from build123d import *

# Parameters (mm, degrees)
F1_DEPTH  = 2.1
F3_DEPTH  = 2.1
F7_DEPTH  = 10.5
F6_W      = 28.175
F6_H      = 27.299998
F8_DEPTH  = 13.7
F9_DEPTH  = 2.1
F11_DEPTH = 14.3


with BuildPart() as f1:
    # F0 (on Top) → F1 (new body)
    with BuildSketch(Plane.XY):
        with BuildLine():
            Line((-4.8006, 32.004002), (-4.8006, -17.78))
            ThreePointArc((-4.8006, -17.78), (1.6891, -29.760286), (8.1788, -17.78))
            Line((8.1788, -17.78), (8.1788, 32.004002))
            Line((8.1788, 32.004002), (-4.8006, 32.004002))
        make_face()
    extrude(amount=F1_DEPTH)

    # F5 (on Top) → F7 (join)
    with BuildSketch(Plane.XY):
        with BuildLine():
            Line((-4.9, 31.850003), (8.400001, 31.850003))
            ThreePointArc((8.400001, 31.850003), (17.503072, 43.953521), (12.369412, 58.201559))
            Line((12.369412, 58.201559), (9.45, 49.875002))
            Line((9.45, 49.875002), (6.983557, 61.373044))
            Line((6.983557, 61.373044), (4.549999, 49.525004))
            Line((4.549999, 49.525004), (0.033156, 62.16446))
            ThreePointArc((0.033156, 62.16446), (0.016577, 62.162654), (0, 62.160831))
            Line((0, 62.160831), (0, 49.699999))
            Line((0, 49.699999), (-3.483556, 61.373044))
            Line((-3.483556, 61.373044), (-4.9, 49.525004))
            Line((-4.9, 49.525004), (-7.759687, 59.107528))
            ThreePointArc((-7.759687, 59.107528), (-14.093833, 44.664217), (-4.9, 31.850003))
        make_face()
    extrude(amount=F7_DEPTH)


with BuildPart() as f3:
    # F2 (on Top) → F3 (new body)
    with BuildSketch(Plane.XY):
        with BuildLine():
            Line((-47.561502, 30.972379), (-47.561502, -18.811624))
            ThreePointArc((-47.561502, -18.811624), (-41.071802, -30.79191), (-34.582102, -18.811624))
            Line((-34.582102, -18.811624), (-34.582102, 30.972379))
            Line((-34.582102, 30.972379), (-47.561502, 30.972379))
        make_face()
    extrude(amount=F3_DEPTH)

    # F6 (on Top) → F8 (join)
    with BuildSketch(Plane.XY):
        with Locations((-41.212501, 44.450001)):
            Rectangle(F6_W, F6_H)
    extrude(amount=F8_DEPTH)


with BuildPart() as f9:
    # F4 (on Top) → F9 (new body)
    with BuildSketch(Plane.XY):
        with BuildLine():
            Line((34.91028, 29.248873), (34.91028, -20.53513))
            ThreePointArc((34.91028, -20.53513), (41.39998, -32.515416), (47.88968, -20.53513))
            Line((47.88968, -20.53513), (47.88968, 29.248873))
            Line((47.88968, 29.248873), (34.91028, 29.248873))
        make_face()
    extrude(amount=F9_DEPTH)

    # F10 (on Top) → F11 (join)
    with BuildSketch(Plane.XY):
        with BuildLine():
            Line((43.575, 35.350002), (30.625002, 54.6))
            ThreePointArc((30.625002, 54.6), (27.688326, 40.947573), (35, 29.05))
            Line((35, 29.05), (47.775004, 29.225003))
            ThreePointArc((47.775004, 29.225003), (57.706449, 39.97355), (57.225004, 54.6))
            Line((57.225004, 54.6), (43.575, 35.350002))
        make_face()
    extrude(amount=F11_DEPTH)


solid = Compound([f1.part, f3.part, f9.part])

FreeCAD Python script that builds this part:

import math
import FreeCAD as App
import Part
import Sketcher


def add_polygon(sketch, points):
    """Adds a closed chain of lines whose ends are joined by coincident constraints."""
    first, n = sketch.GeometryCount, len(points)
    for a, b in zip(points, points[1:] + points[:1]):
        sketch.addGeometry(Part.LineSegment(App.Vector(*a, 0), App.Vector(*b, 0)), False)
    for i in range(n):
        sketch.addConstraint(Sketcher.Constraint("Coincident", first + i, 2, first + (i + 1) % n, 1))

doc = App.newDocument("Part")
body = doc.addObject("PartDesign::Body", "Body")

sketch1 = body.newObject("Sketcher::SketchObject", "Sketch")
sketch1.AttachmentSupport = (doc.getObject("XY_Plane"), [""])
sketch1.MapMode = "FlatFace"
sketch1.addGeometry([
    Part.LineSegment(App.Vector(-5, 32, 0), App.Vector(-5, -18, 0)),
    Part.ArcOfCircle(Part.Circle(App.Vector(2, -22, 0), App.Vector(0, 0, 1), 8), math.radians(147), math.radians(393)),
    Part.LineSegment(App.Vector(8, -18, 0), App.Vector(8, 32, 0)),
    Part.LineSegment(App.Vector(8, 32, 0), App.Vector(-5, 32, 0)),
], False)
sketch1.addConstraint([
    Sketcher.Constraint("Coincident", 0, 2, 1, 1),
    Sketcher.Constraint("Coincident", 1, 2, 2, 1),
    Sketcher.Constraint("Coincident", 2, 2, 3, 1),
    Sketcher.Constraint("Coincident", 3, 2, 0, 1),
    Sketcher.Constraint("Vertical", 0),
    Sketcher.Constraint("Vertical", 2),
    Sketcher.Constraint("Horizontal", 3),
    Sketcher.Constraint("Horizontal", 0, 2, 1, 2),
    Sketcher.Constraint("DistanceY", 0, 2, -1, 1, 17.78),
    Sketcher.Constraint("DistanceX", 3, 2, 3, 1, 12.9794),
    Sketcher.Constraint("Radius", 1, 7.747873),
    Sketcher.Constraint("DistanceX", -1, 1, 1, 3, 1.6891),
    Sketcher.Constraint("DistanceY", 0, 2, 0, 1, 49.784002),
])
pad1 = body.newObject("PartDesign::Pad", "Pad")
pad1.Profile = sketch1
pad1.Length = 2.1

sketch2 = body.newObject("Sketcher::SketchObject", "Sketch001")
sketch2.AttachmentSupport = (doc.getObject("XY_Plane"), [""])
sketch2.MapMode = "FlatFace"
sketch2.addGeometry([
    Part.LineSegment(App.Vector(-4.9, 31.850003, 0), App.Vector(8.400001, 31.850003, 0)),
    Part.ArcOfCircle(Part.Circle(App.Vector(1.75, 46.326452, 0), App.Vector(0, 0, 1), 15.930791), math.radians(-65.327516), math.radians(48.195064)),
    Part.LineSegment(App.Vector(12.369412, 58.201559, 0), App.Vector(9.45, 49.875002, 0)),
    Part.LineSegment(App.Vector(9.45, 49.875002, 0), App.Vector(6.983557, 61.373044, 0)),
    Part.LineSegment(App.Vector(6.983557, 61.373044, 0), App.Vector(4.549999, 49.525004, 0)),
    Part.LineSegment(App.Vector(4.549999, 49.525004, 0), App.Vector(0.033156, 62.16446, 0)),
    Part.ArcOfCircle(Part.Circle(App.Vector(1.784468, 46.01049, 0), App.Vector(0, 0, 1), 16.248626), math.radians(96.187484), math.radians(96.305096)),
    Part.LineSegment(App.Vector(0, 62.160831, 0), App.Vector(0, 49.699999, 0)),
    Part.LineSegment(App.Vector(0, 49.699999, 0), App.Vector(-3.483556, 61.373044, 0)),
    Part.LineSegment(App.Vector(-3.483556, 61.373044, 0), App.Vector(-4.9, 49.525004, 0)),
    Part.LineSegment(App.Vector(-4.9, 49.525004, 0), App.Vector(-7.759687, 59.107528, 0)),
    Part.ArcOfCircle(Part.Circle(App.Vector(1.75, 46.326452, 0), App.Vector(0, 0, 1), 15.93079), math.radians(126.65088), math.radians(245.327521)),
], False)
sketch2.addConstraint([
    Sketcher.Constraint("Coincident", 0, 2, 1, 1),
    Sketcher.Constraint("Coincident", 1, 2, 2, 1),
    Sketcher.Constraint("Coincident", 2, 2, 3, 1),
    Sketcher.Constraint("Coincident", 3, 2, 4, 1),
    Sketcher.Constraint("Coincident", 4, 2, 5, 1),
    Sketcher.Constraint("Coincident", 5, 2, 6, 1),
    Sketcher.Constraint("Coincident", 6, 2, 7, 1),
    Sketcher.Constraint("Coincident", 7, 2, 8, 1),
    Sketcher.Constraint("Coincident", 8, 2, 9, 1),
    Sketcher.Constraint("Coincident", 9, 2, 10, 1),
    Sketcher.Constraint("Coincident", 10, 2, 11, 1),
    Sketcher.Constraint("Coincident", 11, 2, 0, 1),
    Sketcher.Constraint("Horizontal", 0),
    Sketcher.Constraint("Vertical", 7),
    Sketcher.Constraint("Coincident", 11, 3, 1, 3),
    Sketcher.Constraint("PointOnObject", 6, 2, -2),
    Sketcher.Constraint("DistanceX", 0, 1, 0, 2, 13.300001),
    Sketcher.Constraint("DistanceX", -1, 1, 0, 2, 8.400001),
    Sketcher.Constraint("DistanceY", -1, 1, 7, 2, 49.699999),
    Sketcher.Constraint("DistanceX", 9, 2, -1, 1, 4.9),
    Sketcher.Constraint("DistanceX", 1, 3, 2, 2, 7.7),
    Sketcher.Constraint("DistanceX", 1, 3, 4, 2, 2.799999),
    Sketcher.Constraint("DistanceX", -1, 1, 1, 3, 1.75),
    Sketcher.Constraint("Radius", 1, 15.930791),
    Sketcher.Constraint("Radius", 6, 16.248626),
    Sketcher.Constraint("DistanceY", 0, 2, 2, 2, 18.024999),
    Sketcher.Constraint("DistanceY", 11, 2, 9, 2, 17.675001),
    Sketcher.Constraint("DistanceX", 5, 2, 3, 2, 6.950401),
    Sketcher.Constraint("DistanceY", 1, 2, 5, 2, 3.962901),
    Sketcher.Constraint("Distance", 2, 8.823521),
    Sketcher.Constraint("Distance", 4, 12.095382),
    Sketcher.Constraint("Distance", 9, 11.932408),
    Sketcher.Constraint("Distance", 10, 10.000129),
    Sketcher.Constraint("DistanceY", 7, 2, 7, 1, 12.460832),
    Sketcher.Constraint("DistanceY", -1, 1, 1, 3, 46.326452),
    Sketcher.Constraint("DistanceX", -1, 1, 6, 3, 1.784468),
    Sketcher.Constraint("DistanceY", 2, 2, 3, 2, 11.498042),
    Sketcher.Constraint("DistanceY", 4, 2, 8, 2, 11.84804),
])
pad2 = body.newObject("PartDesign::Pad", "Pad001")
pad2.Profile = sketch2
pad2.Length = 10.5
body2 = doc.addObject("PartDesign::Body", "Body001")

sketch3 = body2.newObject("Sketcher::SketchObject", "Sketch002")
sketch3.AttachmentSupport = (doc.getObject("XY_Plane001"), [""])
sketch3.MapMode = "FlatFace"
sketch3.addGeometry([
    Part.LineSegment(App.Vector(-48, 31, 0), App.Vector(-48, -19, 0)),
    Part.ArcOfCircle(Part.Circle(App.Vector(-41, -23, 0), App.Vector(0, 0, 1), 8), math.radians(147), math.radians(393)),
    Part.LineSegment(App.Vector(-35, -19, 0), App.Vector(-35, 31, 0)),
    Part.LineSegment(App.Vector(-35, 31, 0), App.Vector(-48, 31, 0)),
], False)
sketch3.addConstraint([
    Sketcher.Constraint("Coincident", 0, 2, 1, 1),
    Sketcher.Constraint("Coincident", 1, 2, 2, 1),
    Sketcher.Constraint("Coincident", 2, 2, 3, 1),
    Sketcher.Constraint("Coincident", 3, 2, 0, 1),
    Sketcher.Constraint("Vertical", 0),
    Sketcher.Constraint("Vertical", 2),
    Sketcher.Constraint("Horizontal", 3),
    Sketcher.Constraint("Horizontal", 0, 2, 1, 2),
    Sketcher.Constraint("DistanceX", 3, 2, 3, 1, 12.9794),
    Sketcher.Constraint("Radius", 1, 7.747873),
    Sketcher.Constraint("DistanceX", 1, 3, -1, 1, 41.071802),
    Sketcher.Constraint("DistanceY", 0, 2, 0, 1, 49.784003),
    Sketcher.Constraint("DistanceY", -1, 1, 2, 2, 30.972379),
])
pad3 = body2.newObject("PartDesign::Pad", "Pad002")
pad3.Profile = sketch3
pad3.Length = 2.1

sketch4 = body2.newObject("Sketcher::SketchObject", "Sketch003")
sketch4.AttachmentSupport = (doc.getObject("XY_Plane001"), [""])
sketch4.MapMode = "FlatFace"
add_polygon(sketch4, [(-55, 58), (-55, 31), (-27, 31), (-27, 58)])
sketch4.addConstraint([
    Sketcher.Constraint("Vertical", 0),
    Sketcher.Constraint("Horizontal", 1),
    Sketcher.Constraint("Vertical", 2),
    Sketcher.Constraint("Horizontal", 3),
    Sketcher.Constraint("DistanceY", 0, 2, 0, 1, 27.299998),
    Sketcher.Constraint("DistanceX", 0, 2, -1, 1, 55.300001),
    Sketcher.Constraint("DistanceY", -1, 1, 0, 2, 30.800002),
    Sketcher.Constraint("DistanceX", 1, 1, 1, 2, 28.175),
])
pad4 = body2.newObject("PartDesign::Pad", "Pad003")
pad4.Profile = sketch4
pad4.Length = 13.7
body3 = doc.addObject("PartDesign::Body", "Body002")

sketch5 = body3.newObject("Sketcher::SketchObject", "Sketch004")
sketch5.AttachmentSupport = (doc.getObject("XY_Plane002"), [""])
sketch5.MapMode = "FlatFace"
sketch5.addGeometry([
    Part.LineSegment(App.Vector(35, 29, 0), App.Vector(35, -21, 0)),
    Part.ArcOfCircle(Part.Circle(App.Vector(41, -25, 0), App.Vector(0, 0, 1), 8), math.radians(147), math.radians(393)),
    Part.LineSegment(App.Vector(48, -21, 0), App.Vector(48, 29, 0)),
    Part.LineSegment(App.Vector(48, 29, 0), App.Vector(35, 29, 0)),
], False)
sketch5.addConstraint([
    Sketcher.Constraint("Coincident", 0, 2, 1, 1),
    Sketcher.Constraint("Coincident", 1, 2, 2, 1),
    Sketcher.Constraint("Coincident", 2, 2, 3, 1),
    Sketcher.Constraint("Coincident", 3, 2, 0, 1),
    Sketcher.Constraint("Vertical", 0),
    Sketcher.Constraint("Vertical", 2),
    Sketcher.Constraint("Horizontal", 3),
    Sketcher.Constraint("Horizontal", 0, 2, 1, 2),
    Sketcher.Constraint("DistanceX", 3, 2, 3, 1, 12.9794),
    Sketcher.Constraint("Radius", 1, 7.747873),
    Sketcher.Constraint("DistanceY", 0, 2, 0, 1, 49.784003),
    Sketcher.Constraint("DistanceX", -1, 1, 1, 3, 41.39998),
    Sketcher.Constraint("DistanceY", 0, 2, -1, 1, 20.53513),
])
pad5 = body3.newObject("PartDesign::Pad", "Pad004")
pad5.Profile = sketch5
pad5.Length = 2.1

sketch6 = body3.newObject("Sketcher::SketchObject", "Sketch005")
sketch6.AttachmentSupport = (doc.getObject("XY_Plane002"), [""])
sketch6.MapMode = "FlatFace"
sketch6.addGeometry([
    Part.LineSegment(App.Vector(44, 35, 0), App.Vector(31, 55, 0)),
    Part.ArcOfCircle(Part.Circle(App.Vector(46, 44, 0), App.Vector(0, 0, 1), 19), math.radians(146), math.radians(233)),
    Part.LineSegment(App.Vector(35, 29, 0), App.Vector(48, 29, 0)),
    Part.ArcOfCircle(Part.Circle(App.Vector(40, 47, 0), App.Vector(0, 0, 1), 19), math.radians(-65), math.radians(24)),
    Part.LineSegment(App.Vector(57, 55, 0), App.Vector(44, 35, 0)),
], False)
sketch6.addConstraint([
    Sketcher.Constraint("Coincident", 0, 2, 1, 1),
    Sketcher.Constraint("Coincident", 1, 2, 2, 1),
    Sketcher.Constraint("Coincident", 2, 2, 3, 1),
    Sketcher.Constraint("Coincident", 3, 2, 4, 1),
    Sketcher.Constraint("Coincident", 4, 2, 0, 1),
    Sketcher.Constraint("Horizontal", 0, 2, 3, 2),
    Sketcher.Constraint("DistanceX", -1, 1, 1, 2, 35.0),
    Sketcher.Constraint("DistanceY", -1, 1, 0, 2, 54.6),
    Sketcher.Constraint("DistanceX", 0, 2, 3, 2, 26.600002),
    Sketcher.Constraint("DistanceY", 1, 2, 4, 2, 6.300002),
    Sketcher.Constraint("DistanceY", -1, 1, 1, 2, 29.05),
    Sketcher.Constraint("DistanceX", 2, 2, 3, 2, 9.45),
    Sketcher.Constraint("DistanceX", 0, 2, 4, 2, 12.949998),
    Sketcher.Constraint("DistanceX", -1, 1, 0, 2, 30.625002),
    Sketcher.Constraint("Radius", 1, 18.755726),
    Sketcher.Constraint("Radius", 3, 19.274085),
    Sketcher.Constraint("DistanceY", 2, 2, 4, 2, 6.124999),
])
pad6 = body3.newObject("PartDesign::Pad", "Pad005")
pad6.Profile = sketch6
pad6.Length = 14.3

doc.recompute()
